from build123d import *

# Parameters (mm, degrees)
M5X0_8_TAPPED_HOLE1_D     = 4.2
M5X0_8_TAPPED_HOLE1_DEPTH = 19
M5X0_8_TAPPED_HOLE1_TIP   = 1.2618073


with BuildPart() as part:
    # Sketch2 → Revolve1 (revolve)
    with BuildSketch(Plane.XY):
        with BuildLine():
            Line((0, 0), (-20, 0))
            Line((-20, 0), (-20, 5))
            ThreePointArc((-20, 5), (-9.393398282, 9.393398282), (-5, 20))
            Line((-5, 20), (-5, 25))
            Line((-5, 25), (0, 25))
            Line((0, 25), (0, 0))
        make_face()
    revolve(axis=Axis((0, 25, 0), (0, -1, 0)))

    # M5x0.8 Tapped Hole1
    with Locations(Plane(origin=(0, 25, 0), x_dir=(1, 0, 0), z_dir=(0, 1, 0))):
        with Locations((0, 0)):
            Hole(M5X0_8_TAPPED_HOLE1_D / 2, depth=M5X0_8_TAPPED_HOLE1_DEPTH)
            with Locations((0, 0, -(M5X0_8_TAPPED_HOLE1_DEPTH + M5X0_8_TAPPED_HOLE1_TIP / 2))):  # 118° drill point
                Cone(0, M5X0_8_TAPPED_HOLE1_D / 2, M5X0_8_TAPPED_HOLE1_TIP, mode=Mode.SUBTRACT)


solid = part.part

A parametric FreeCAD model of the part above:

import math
import FreeCAD as App
import Part
import Sketcher
Q = App.Units.Quantity

doc = App.newDocument("Part")
body = doc.addObject("PartDesign::Body", "Body")

# Sketch on XY plane
sketch1 = body.newObject("Sketcher::SketchObject", "Sketch")
sketch1.AttachmentSupport = (doc.getObject("XY_Plane"), [""])
sketch1.MapMode = "FlatFace"
sketch1.addGeometry(Part.LineSegment(App.Vector(-20, 0, 0), App.Vector(0, 0, 0)), False)
sketch1.addGeometry(Part.LineSegment(App.Vector(0, 0, 0), App.Vector(0, 25, 0)), False)
sketch1.addGeometry(Part.LineSegment(App.Vector(0, 25, 0), App.Vector(-5, 25, 0)), False)
sketch1.addGeometry(Part.LineSegment(App.Vector(-5, 25, 0), App.Vector(-5, 20, 0)), False)
sketch1.addGeometry(Part.ArcOfCircle(Part.Circle(App.Vector(-20, 20, 0), App.Vector(0, 0, 1), 15), math.radians(-90), math.radians(0)), False)
sketch1.addGeometry(Part.LineSegment(App.Vector(-20, 5, 0), App.Vector(-20, 0, 0)), False)
sketch1.addConstraint(Sketcher.Constraint("Coincident", 0, 2, 1, 1))
sketch1.addConstraint(Sketcher.Constraint("Coincident", 1, 2, 2, 1))
sketch1.addConstraint(Sketcher.Constraint("Coincident", 2, 2, 3, 1))
sketch1.addConstraint(Sketcher.Constraint("Tangent", 3, 2, 4, 2))
sketch1.addConstraint(Sketcher.Constraint("Coincident", 4, 1, 5, 1))
sketch1.addConstraint(Sketcher.Constraint("Coincident", 5, 2, 0, 1))
sketch1.addConstraint(Sketcher.Constraint("Horizontal", 0))
sketch1.addConstraint(Sketcher.Constraint("Vertical", 1))
sketch1.addConstraint(Sketcher.Constraint("Horizontal", 2))
sketch1.addConstraint(Sketcher.Constraint("Vertical", 3))
sketch1.addConstraint(Sketcher.Constraint("Vertical", 5))
sketch1.addConstraint(Sketcher.Constraint("Coincident", 0, 2, -1, 1))
sketch1.addConstraint(Sketcher.Constraint("Equal", 2, 3))
sketch1.addConstraint(Sketcher.Constraint("Equal", 3, 5))
sketch1.addConstraint(Sketcher.Constraint("Radius", 4, Q("15 mm")))
sketch1.addConstraint(Sketcher.Constraint("DistanceX", 0, 1, 0, 2, Q("20 mm")))
sketch1.addConstraint(Sketcher.Constraint("DistanceX", 2, 2, 2, 1, Q("5 mm")))
revolution = body.newObject("PartDesign::Revolution", "Revolution")
revolution.Profile = sketch1
revolution.ReferenceAxis = (sketch1, ["V_Axis"])
revolution.Angle = 360

# Sketch on XZ plane
sketch2 = body.newObject("Sketcher::SketchObject", "Sketch001")
sketch2.AttachmentSupport = (doc.getObject("XZ_Plane"), [""])
sketch2.MapMode = "FlatFace"
sketch2.AttachmentOffset = App.Placement(App.Vector(0, 0, -25), App.Rotation())
sketch2.addGeometry(Part.Circle(App.Vector(0, 0, 0), App.Vector(0, 0, 1), 2.1), False)
sketch2.addConstraint(Sketcher.Constraint("Coincident", 0, 3, -1, 1))
sketch2.addConstraint(Sketcher.Constraint("Diameter", 0, Q("4.2 mm")))
doc.recompute()
hole = body.newObject("PartDesign::Hole", "Hole")
hole.Profile = sketch2
hole.ThreadType = "None"
hole.Diameter = 4.2
hole.DepthType = "Dimension"
hole.Depth = 19
hole.DrillPoint = "Angled"
hole.DrillPointAngle = 118
hole.Reversed = True

doc.recompute()
